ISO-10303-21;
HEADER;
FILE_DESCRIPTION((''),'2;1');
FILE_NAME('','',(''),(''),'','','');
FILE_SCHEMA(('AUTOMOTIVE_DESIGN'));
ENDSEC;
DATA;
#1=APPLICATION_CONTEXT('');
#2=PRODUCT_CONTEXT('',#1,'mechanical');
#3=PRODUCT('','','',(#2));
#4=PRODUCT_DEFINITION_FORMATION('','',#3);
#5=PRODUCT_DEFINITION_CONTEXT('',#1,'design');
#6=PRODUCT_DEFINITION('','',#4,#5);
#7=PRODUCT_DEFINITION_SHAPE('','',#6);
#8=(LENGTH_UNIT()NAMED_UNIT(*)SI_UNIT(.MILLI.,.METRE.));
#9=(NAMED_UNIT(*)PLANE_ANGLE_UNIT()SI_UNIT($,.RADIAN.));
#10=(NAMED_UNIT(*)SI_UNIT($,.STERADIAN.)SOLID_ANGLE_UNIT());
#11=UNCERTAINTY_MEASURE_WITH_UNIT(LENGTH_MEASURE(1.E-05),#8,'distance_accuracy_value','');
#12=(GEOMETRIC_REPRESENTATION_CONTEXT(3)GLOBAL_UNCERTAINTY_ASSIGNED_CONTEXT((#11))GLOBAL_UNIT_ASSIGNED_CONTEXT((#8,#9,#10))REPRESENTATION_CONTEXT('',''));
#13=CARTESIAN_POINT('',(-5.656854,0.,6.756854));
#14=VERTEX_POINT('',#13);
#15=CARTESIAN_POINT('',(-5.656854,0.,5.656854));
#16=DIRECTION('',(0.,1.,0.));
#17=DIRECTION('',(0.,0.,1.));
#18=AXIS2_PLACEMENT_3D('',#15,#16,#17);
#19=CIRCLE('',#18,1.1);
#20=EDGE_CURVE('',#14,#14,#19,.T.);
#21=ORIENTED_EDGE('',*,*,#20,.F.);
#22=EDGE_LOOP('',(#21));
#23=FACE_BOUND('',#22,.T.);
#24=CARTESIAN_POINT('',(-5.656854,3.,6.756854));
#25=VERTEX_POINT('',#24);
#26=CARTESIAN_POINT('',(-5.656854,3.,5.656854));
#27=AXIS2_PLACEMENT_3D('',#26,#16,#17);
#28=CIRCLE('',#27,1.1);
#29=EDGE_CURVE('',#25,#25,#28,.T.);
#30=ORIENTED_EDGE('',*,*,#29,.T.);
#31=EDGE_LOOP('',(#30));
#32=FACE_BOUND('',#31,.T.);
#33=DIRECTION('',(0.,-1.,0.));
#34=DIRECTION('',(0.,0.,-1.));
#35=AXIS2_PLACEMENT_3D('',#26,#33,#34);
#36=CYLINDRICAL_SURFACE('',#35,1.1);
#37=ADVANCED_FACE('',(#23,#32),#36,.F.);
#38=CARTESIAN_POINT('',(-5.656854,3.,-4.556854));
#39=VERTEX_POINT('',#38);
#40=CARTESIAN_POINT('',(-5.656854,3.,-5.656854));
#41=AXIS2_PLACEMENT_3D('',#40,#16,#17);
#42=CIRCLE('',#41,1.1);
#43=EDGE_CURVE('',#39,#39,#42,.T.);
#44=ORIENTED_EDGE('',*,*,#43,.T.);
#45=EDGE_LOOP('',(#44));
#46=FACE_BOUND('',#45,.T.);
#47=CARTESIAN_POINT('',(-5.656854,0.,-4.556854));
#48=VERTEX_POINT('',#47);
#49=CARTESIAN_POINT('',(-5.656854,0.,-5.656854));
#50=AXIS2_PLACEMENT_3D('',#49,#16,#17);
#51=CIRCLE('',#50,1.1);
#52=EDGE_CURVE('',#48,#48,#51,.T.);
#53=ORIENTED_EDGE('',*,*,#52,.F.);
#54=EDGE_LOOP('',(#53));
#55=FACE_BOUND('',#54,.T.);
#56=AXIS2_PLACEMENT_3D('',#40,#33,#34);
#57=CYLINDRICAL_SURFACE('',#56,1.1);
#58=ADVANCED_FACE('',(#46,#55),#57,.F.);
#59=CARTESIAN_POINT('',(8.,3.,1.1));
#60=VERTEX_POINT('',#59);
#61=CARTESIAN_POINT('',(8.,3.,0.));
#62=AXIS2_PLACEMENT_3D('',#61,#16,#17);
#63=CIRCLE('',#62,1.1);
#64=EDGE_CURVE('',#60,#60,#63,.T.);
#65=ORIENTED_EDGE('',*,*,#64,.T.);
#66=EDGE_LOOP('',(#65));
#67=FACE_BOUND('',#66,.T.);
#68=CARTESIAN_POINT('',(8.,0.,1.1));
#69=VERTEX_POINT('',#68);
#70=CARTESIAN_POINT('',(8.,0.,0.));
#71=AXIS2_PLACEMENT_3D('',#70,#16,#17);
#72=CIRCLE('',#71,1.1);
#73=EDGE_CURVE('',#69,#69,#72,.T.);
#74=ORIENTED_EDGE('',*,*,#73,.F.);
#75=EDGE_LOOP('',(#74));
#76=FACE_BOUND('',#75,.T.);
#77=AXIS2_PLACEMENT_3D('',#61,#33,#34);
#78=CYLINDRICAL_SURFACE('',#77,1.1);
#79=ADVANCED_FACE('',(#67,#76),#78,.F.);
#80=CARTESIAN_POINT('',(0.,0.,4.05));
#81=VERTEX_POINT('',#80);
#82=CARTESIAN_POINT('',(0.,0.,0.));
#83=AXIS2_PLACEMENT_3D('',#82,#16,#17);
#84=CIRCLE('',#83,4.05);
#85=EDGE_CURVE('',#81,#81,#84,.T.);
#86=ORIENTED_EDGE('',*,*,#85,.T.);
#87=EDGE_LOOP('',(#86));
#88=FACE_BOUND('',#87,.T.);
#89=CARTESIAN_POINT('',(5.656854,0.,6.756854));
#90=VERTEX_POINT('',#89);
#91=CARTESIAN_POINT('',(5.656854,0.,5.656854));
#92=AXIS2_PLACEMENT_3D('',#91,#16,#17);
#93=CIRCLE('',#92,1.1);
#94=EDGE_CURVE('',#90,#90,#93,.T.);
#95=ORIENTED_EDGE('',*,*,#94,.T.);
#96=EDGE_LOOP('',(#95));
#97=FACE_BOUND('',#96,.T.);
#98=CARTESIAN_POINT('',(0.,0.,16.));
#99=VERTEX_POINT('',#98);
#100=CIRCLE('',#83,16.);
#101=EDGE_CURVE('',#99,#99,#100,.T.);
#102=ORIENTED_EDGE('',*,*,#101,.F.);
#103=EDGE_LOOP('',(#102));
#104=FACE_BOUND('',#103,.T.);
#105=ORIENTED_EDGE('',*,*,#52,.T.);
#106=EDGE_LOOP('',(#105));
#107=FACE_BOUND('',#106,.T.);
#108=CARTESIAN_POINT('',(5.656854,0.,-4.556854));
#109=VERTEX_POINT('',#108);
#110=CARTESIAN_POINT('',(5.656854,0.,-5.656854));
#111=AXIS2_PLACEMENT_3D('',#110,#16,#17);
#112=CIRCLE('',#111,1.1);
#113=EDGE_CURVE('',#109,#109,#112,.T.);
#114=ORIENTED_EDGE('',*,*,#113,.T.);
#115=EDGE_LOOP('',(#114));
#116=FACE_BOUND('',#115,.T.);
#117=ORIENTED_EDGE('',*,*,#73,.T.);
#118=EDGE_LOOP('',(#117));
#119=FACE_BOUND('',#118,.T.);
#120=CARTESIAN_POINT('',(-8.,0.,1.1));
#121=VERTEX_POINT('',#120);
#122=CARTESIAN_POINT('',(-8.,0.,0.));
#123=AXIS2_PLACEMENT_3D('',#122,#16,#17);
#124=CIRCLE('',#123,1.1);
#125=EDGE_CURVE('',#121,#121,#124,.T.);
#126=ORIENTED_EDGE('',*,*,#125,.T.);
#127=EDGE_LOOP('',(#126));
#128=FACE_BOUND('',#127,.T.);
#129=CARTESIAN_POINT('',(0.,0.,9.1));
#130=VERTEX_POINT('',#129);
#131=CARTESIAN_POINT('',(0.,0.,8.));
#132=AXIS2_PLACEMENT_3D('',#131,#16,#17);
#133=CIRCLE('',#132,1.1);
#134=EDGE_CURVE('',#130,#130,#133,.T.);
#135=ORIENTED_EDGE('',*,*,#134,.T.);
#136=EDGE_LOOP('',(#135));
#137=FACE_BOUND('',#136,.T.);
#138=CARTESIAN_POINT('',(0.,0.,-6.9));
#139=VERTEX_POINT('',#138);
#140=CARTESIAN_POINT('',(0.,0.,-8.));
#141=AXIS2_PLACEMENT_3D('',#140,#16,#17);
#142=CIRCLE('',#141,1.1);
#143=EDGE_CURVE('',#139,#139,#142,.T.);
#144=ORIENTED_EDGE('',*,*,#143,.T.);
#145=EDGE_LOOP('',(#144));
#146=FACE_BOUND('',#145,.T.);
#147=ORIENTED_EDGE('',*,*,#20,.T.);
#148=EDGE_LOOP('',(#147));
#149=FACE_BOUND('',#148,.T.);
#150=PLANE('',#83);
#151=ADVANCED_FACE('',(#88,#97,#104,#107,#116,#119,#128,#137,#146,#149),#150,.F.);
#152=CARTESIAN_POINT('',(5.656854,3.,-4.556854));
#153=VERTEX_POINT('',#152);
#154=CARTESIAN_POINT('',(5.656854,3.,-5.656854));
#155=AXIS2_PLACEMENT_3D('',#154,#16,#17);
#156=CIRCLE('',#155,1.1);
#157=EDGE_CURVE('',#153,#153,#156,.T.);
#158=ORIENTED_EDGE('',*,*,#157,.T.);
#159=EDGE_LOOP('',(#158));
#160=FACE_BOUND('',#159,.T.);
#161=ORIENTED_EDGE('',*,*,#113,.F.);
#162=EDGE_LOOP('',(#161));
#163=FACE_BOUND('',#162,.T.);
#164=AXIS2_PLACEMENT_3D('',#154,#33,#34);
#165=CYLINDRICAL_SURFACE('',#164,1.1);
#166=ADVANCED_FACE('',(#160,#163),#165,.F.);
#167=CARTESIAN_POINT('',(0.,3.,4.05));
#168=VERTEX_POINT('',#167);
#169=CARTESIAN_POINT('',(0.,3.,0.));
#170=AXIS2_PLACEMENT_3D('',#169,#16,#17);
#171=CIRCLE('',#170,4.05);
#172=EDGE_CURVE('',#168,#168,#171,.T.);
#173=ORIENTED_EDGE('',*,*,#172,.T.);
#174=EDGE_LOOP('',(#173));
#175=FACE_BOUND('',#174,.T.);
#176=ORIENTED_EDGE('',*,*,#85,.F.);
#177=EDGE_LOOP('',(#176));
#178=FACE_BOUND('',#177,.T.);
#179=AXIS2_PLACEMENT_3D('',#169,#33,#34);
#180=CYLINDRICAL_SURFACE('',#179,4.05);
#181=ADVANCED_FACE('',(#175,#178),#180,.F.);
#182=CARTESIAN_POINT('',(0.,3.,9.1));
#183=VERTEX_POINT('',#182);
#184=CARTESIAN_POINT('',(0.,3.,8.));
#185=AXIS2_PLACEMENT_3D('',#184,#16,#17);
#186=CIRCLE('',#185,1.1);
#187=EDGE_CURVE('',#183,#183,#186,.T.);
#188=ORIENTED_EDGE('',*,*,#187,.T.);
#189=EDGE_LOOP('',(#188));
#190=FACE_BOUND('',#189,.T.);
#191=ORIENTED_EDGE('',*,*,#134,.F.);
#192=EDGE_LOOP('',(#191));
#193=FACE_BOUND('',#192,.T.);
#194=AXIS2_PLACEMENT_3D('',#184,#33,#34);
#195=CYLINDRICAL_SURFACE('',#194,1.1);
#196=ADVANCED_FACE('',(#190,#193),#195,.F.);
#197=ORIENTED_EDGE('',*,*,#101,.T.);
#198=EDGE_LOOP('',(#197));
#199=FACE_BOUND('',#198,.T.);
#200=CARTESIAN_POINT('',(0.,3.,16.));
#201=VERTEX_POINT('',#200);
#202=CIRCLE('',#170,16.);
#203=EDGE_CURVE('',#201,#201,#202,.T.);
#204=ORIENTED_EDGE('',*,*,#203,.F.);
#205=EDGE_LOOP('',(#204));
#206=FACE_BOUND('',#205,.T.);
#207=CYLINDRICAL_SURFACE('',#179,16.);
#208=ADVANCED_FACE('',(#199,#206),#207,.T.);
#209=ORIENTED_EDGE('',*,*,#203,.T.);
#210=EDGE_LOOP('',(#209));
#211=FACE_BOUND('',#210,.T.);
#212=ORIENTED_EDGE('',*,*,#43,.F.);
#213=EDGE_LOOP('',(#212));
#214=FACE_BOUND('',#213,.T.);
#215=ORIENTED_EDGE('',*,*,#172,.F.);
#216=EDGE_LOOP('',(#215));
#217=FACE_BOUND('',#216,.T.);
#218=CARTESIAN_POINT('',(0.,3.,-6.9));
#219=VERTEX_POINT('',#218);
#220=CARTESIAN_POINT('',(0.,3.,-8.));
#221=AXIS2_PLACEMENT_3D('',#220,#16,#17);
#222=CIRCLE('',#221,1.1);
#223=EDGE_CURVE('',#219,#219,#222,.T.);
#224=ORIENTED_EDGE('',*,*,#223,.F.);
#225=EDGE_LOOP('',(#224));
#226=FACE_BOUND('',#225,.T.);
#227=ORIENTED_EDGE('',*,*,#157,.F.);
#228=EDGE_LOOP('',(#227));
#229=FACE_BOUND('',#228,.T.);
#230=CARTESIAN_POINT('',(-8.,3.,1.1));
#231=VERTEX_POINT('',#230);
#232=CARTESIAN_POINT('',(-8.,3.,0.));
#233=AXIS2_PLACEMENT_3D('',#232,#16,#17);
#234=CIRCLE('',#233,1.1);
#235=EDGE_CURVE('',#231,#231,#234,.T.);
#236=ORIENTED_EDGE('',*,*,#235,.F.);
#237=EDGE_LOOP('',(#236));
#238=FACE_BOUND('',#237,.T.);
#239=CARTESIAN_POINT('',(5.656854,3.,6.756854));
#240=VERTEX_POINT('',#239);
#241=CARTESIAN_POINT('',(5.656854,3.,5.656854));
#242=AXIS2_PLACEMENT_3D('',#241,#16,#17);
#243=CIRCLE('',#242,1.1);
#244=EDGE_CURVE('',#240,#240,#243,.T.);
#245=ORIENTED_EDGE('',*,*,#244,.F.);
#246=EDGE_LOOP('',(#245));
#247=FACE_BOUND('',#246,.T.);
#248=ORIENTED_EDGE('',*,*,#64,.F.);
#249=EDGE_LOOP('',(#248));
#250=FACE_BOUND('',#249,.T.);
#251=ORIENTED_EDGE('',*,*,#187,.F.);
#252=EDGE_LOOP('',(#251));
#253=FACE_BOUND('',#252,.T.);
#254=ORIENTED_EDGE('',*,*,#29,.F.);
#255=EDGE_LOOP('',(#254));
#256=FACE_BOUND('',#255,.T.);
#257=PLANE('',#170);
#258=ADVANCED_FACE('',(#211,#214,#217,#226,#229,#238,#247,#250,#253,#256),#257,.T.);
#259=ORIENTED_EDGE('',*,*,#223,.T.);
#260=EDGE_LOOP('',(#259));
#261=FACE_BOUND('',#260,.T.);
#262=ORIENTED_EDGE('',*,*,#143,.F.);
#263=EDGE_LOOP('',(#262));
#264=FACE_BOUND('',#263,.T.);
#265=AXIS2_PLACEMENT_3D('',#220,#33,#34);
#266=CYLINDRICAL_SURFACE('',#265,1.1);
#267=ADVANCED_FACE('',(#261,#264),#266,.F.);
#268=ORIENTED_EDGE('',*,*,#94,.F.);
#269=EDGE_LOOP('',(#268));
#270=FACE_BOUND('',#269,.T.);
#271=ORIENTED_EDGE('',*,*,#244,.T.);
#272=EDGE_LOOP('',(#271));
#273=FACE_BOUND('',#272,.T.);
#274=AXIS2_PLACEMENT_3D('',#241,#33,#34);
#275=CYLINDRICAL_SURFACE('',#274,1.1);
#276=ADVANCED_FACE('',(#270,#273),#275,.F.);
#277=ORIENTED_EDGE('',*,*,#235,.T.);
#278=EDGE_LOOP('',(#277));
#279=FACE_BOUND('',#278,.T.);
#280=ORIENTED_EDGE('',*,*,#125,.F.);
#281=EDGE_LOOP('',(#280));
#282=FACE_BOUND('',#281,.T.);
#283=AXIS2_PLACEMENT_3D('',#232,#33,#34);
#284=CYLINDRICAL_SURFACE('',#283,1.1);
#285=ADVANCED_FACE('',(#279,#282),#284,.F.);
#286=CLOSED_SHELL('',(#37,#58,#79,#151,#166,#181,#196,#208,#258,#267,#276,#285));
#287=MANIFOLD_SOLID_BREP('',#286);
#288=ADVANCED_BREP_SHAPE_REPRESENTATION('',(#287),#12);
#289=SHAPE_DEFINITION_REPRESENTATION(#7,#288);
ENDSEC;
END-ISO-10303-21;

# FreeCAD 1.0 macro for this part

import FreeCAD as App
import Part
import Sketcher

doc = App.newDocument("Part")
body = doc.addObject("PartDesign::Body", "Body")

sketch1 = body.newObject("Sketcher::SketchObject", "Sketch")
sketch1.AttachmentSupport = (doc.getObject("XZ_Plane"), [""])
sketch1.MapMode = "FlatFace"
sketch1.addGeometry([
    Part.Circle(App.Vector(0, 0, 0), App.Vector(0, 0, 1), 16),
    Part.Circle(App.Vector(-5.7, -5.7, 0), App.Vector(0, 0, 1), 1.1),
    Part.Circle(App.Vector(0, -8, 0), App.Vector(0, 0, 1), 1.1),
    Part.Circle(App.Vector(0, 0, 0), App.Vector(0, 0, 1), 4),
    Part.Circle(App.Vector(-8, 0, 0), App.Vector(0, 0, 1), 1.1),
    Part.Circle(App.Vector(-5.7, 5.7, 0), App.Vector(0, 0, 1), 1.1),
    Part.Circle(App.Vector(5.7, -5.7, 0), App.Vector(0, 0, 1), 1.1),
    Part.Circle(App.Vector(8, 0, 0), App.Vector(0, 0, 1), 1.1),
    Part.Circle(App.Vector(0, 8, 0), App.Vector(0, 0, 1), 1.1),
    Part.Circle(App.Vector(5.7, 5.7, 0), App.Vector(0, 0, 1), 1.1),
], False)
sketch1.addConstraint([
    Sketcher.Constraint("Coincident", 0, 3, -1, 1),
    Sketcher.Constraint("Coincident", 3, 3, -1, 1),
    Sketcher.Constraint("Equal", 1, 2),
    Sketcher.Constraint("Equal", 2, 4),
    Sketcher.Constraint("Equal", 4, 5),
    Sketcher.Constraint("Equal", 5, 6),
    Sketcher.Constraint("Equal", 6, 7),
    Sketcher.Constraint("Equal", 7, 8),
    Sketcher.Constraint("Equal", 8, 9),
    Sketcher.Constraint("Symmetric", 5, 3, 6, 3, -1, 1),
    Sketcher.Constraint("Symmetric", 4, 3, 7, 3, -1, 1),
    Sketcher.Constraint("Symmetric", 2, 3, 8, 3, -1, 1),
    Sketcher.Constraint("Symmetric", 1, 3, 9, 3, -1, 1),
    Sketcher.Constraint("Symmetric", 1, 3, 6, 3, -2),
    Sketcher.Constraint("PointOnObject", 2, 3, -2),
    Sketcher.Constraint("PointOnObject", 4, 3, -1),
    Sketcher.Constraint("Diameter", 0, 32.0),
    Sketcher.Constraint("Diameter", 1, 2.2),
    Sketcher.Constraint("Diameter", 3, 8.1),
    Sketcher.Constraint("DistanceY", 2, 3, -1, 1, 8.0),
    Sketcher.Constraint("DistanceX", 4, 3, -1, 1, 8.0),
    Sketcher.Constraint("DistanceY", 1, 3, 5, 3, 11.313708),
    Sketcher.Constraint("DistanceX", 1, 3, 6, 3, 11.313708),
])
pad1 = body.newObject("PartDesign::Pad", "Pad")
pad1.Profile = sketch1
pad1.Length = 3
pad1.Reversed = True

doc.recompute()
